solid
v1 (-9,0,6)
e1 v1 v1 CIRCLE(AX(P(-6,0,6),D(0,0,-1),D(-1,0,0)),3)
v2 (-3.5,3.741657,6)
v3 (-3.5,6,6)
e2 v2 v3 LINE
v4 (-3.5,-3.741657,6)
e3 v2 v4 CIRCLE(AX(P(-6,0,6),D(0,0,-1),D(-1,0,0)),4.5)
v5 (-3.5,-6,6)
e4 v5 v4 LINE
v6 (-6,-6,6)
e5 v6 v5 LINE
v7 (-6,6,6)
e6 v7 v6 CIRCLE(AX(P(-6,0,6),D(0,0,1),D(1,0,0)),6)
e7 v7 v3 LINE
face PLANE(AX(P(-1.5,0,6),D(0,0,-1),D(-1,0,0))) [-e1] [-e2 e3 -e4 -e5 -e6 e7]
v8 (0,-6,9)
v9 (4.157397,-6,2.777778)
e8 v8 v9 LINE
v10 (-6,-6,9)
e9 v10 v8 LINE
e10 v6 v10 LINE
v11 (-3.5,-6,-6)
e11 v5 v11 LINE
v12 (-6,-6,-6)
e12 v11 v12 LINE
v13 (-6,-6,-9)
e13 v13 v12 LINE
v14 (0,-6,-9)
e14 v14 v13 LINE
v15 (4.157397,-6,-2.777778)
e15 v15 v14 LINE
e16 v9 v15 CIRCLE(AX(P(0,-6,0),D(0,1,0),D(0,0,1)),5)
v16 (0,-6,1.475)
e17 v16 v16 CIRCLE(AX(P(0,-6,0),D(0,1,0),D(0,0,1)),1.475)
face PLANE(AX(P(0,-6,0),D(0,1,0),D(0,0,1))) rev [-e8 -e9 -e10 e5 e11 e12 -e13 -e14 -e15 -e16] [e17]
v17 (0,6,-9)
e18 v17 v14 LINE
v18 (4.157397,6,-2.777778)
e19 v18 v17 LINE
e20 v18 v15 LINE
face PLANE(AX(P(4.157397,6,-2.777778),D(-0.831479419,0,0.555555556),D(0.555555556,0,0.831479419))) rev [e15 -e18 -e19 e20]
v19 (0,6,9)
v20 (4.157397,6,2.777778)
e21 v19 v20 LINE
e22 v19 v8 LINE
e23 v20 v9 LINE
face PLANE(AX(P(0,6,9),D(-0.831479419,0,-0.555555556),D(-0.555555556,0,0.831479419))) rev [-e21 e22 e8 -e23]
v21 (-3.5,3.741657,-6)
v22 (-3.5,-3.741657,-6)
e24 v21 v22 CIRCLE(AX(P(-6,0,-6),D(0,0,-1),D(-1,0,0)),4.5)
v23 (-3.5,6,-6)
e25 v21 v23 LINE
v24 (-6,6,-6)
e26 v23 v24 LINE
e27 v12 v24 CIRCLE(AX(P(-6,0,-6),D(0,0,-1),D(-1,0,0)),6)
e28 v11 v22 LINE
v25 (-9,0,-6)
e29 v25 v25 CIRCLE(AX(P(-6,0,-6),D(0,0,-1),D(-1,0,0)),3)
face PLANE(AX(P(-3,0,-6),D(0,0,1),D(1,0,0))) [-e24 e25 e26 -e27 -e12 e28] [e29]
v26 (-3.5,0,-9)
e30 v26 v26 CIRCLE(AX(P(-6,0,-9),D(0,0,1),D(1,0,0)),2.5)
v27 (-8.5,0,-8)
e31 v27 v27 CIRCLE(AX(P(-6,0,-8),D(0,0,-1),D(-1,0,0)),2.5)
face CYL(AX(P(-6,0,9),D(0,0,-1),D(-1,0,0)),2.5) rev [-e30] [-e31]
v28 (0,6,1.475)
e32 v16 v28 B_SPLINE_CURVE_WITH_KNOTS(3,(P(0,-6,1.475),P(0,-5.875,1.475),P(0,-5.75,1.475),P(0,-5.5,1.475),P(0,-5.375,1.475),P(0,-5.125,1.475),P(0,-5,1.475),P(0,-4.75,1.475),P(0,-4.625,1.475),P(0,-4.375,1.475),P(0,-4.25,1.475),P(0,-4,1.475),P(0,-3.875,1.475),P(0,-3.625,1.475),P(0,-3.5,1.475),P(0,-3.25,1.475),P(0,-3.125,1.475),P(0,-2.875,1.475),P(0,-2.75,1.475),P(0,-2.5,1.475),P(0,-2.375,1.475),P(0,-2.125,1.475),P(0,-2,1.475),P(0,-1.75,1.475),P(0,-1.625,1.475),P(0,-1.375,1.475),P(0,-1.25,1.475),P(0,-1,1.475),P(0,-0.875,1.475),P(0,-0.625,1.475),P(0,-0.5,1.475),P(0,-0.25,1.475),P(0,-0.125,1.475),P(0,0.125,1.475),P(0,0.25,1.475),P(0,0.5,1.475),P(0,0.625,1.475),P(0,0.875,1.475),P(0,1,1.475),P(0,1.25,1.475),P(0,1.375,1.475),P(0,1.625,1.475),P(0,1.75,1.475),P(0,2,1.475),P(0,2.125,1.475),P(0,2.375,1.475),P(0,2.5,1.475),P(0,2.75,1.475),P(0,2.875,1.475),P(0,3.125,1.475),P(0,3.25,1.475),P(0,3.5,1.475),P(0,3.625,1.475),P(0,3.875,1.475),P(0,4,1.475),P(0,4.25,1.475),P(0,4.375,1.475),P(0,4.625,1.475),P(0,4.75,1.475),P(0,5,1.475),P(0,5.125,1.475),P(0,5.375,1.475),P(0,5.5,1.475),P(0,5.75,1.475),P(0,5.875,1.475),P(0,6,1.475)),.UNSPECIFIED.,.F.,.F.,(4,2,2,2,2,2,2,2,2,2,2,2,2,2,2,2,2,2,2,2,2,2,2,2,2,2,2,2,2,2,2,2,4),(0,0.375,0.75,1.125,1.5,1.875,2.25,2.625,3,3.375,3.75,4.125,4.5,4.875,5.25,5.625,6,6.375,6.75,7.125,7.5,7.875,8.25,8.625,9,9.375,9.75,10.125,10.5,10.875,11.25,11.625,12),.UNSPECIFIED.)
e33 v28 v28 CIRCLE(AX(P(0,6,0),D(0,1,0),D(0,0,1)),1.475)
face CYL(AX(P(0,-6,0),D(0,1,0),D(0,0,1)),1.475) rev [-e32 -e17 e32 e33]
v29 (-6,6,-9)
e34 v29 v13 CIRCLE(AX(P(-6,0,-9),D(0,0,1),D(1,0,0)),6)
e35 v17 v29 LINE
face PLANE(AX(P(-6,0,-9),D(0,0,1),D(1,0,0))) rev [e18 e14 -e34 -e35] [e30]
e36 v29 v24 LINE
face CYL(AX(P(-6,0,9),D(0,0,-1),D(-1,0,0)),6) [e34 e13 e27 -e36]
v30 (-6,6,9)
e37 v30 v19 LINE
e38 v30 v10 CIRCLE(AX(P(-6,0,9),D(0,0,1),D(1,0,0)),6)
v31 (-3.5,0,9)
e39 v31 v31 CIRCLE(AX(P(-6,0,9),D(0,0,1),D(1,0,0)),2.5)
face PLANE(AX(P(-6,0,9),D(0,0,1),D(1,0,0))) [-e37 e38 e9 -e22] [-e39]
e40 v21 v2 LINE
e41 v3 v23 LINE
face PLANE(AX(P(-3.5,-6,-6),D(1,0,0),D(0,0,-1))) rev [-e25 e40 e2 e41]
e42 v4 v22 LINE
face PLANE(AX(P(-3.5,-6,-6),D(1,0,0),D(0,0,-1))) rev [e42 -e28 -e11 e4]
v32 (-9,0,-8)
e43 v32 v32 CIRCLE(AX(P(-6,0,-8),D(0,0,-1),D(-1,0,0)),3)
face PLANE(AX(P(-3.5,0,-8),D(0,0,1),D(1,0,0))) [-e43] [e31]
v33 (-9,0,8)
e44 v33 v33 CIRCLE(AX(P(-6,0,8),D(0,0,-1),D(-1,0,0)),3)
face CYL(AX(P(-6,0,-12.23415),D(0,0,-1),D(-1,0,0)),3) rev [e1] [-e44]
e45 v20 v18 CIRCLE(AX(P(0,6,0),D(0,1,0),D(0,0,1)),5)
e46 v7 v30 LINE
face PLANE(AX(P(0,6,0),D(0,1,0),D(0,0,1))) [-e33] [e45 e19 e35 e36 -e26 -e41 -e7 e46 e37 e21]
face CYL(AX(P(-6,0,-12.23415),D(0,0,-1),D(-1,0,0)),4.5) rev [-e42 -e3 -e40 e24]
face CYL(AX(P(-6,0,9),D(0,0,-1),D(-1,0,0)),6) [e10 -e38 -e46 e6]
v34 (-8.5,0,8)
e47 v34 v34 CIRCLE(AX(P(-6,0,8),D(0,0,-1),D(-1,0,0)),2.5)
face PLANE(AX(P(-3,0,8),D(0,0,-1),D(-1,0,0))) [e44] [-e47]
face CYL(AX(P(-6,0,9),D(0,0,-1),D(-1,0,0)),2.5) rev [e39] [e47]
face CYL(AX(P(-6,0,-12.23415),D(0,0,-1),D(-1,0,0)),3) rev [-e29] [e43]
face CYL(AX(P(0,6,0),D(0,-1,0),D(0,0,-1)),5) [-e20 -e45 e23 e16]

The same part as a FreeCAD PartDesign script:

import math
import FreeCAD as App
import Part
import Sketcher

V = App.Vector
Q = App.Units.Quantity


def add_polygon(sketch, points):
    """Adds a closed chain of lines whose ends are joined by coincident constraints."""
    first, n = sketch.GeometryCount, len(points)
    for a, b in zip(points, points[1:] + points[:1]):
        sketch.addGeometry(Part.LineSegment(App.Vector(*a, 0), App.Vector(*b, 0)), False)
    for i in range(n):
        sketch.addConstraint(Sketcher.Constraint("Coincident", first + i, 2, first + (i + 1) % n, 1))

doc = App.newDocument("Part")
params = doc.addObject("Spreadsheet::Sheet", "Params")
for row, (alias, value) in enumerate([
    ("sketch1_diameter", "12 mm"),
    ("sketch1_diameter2", "5 mm"),
    ("pad1_length", "18 mm"),
    ("sketch2_diameter", "10 mm"),
    ("sketch2_diameter2", "2.95 mm"),
    ("pad2_length", "12 mm"),
    ("sketch3_radius", "5 mm"),
    ("sketch3_width", "6 mm"),
    ("sketch3_height", "18 mm"),
    ("pad3_length", "12 mm"),
    ("sketch4_height", "1 mm"),
    ("sketch4_height2", "18 mm"),
    ("sketch4_height3", "2 mm"),
    ("sketch4_width", "2.5 mm"),
    ("sketch4_width2", "0.5 mm"),
    ("groove_angle", "360 deg"),
    ("sketch5_diameter", "2.95 mm"),
    ("sketch5_height", "12 mm"),
    ("sketch5_width", "8.5 mm"),
], start=1):
    params.set(f"A{row}", alias)
    params.set(f"B{row}", "=" + value)
    params.setAlias(f"B{row}", alias)

body = doc.addObject("PartDesign::Body", "Body")

sketch1 = body.newObject("Sketcher::SketchObject", "Sketch")
sketch1.AttachmentSupport = (doc.getObject("XY_Plane"), [""])
sketch1.MapMode = "FlatFace"
sketch1.addGeometry([
    Part.Circle(V(-6, 0, 0), V(0, 0, 1), 6),
    Part.Circle(V(-6, 0, 0), V(0, 0, 1), 2.5),
], False)
sketch1.addConstraint([
    Sketcher.Constraint("Coincident", 1, 3, 0, 3),
    Sketcher.Constraint("PointOnObject", 0, 3, -1),
    Sketcher.Constraint("Diameter", 0, Q("12 mm")),
    Sketcher.Constraint("Diameter", 1, Q("5 mm")),
    Sketcher.Constraint("DistanceX", 0, 3, -1, 1, Q("6 mm")),
])
sketch1.setExpression("Constraints[2]", "Params.sketch1_diameter")
sketch1.setExpression("Constraints[3]", "Params.sketch1_diameter2")
pad1 = body.newObject("PartDesign::Pad", "Pad")
pad1.Profile = sketch1
pad1.setExpression("Length", "Params.pad1_length")
pad1.Midplane = True

sketch2 = body.newObject("Sketcher::SketchObject", "Sketch001")
sketch2.AttachmentSupport = (doc.getObject("XZ_Plane"), [""])
sketch2.MapMode = "FlatFace"
sketch2.addGeometry([
    Part.Circle(V(0, 0, 0), V(0, 0, 1), 5),
    Part.Circle(V(0, 0, 0), V(0, 0, 1), 1.5),
], False)
sketch2.addConstraint([
    Sketcher.Constraint("Coincident", 0, 3, -1, 1),
    Sketcher.Constraint("Coincident", 1, 3, -1, 1),
    Sketcher.Constraint("Diameter", 0, Q("10 mm")),
    Sketcher.Constraint("Diameter", 1, Q("2.95 mm")),
])
sketch2.setExpression("Constraints[2]", "Params.sketch2_diameter")
sketch2.setExpression("Constraints[3]", "Params.sketch2_diameter2")
pad2 = body.newObject("PartDesign::Pad", "Pad001")
pad2.Profile = sketch2
pad2.setExpression("Length", "Params.pad2_length")
pad2.Midplane = True

sketch3 = body.newObject("Sketcher::SketchObject", "Sketch002")
sketch3.AttachmentSupport = (doc.getObject("XZ_Plane"), [""])
sketch3.MapMode = "FlatFace"
sketch3.addGeometry([
    Part.LineSegment(V(-6, -9, 0), V(-6, 9, 0)),
    Part.LineSegment(V(-6, 9, 0), V(0, 9, 0)),
    Part.LineSegment(V(0, 9, 0), V(4.2, 2.8, 0)),
    Part.ArcOfCircle(Part.Circle(V(0, 0, 0), V(0, 0, 1), 5), math.radians(-34), math.radians(34)),
    Part.LineSegment(V(4.2, -2.8, 0), V(0, -9, 0)),
    Part.LineSegment(V(0, -9, 0), V(-6, -9, 0)),
], False)
sketch3.addConstraint([
    Sketcher.Constraint("Coincident", 0, 2, 1, 1),
    Sketcher.Constraint("Coincident", 1, 2, 2, 1),
    Sketcher.Constraint("Tangent", 2, 2, 3, 2),
    Sketcher.Constraint("Tangent", 3, 1, 4, 1),
    Sketcher.Constraint("Coincident", 4, 2, 5, 1),
    Sketcher.Constraint("Coincident", 5, 2, 0, 1),
    Sketcher.Constraint("Vertical", 0),
    Sketcher.Constraint("Horizontal", 1),
    Sketcher.Constraint("Horizontal", 5),
    Sketcher.Constraint("Coincident", 3, 3, -1, 1),
    Sketcher.Constraint("Symmetric", 1, 2, 4, 2, -1, 1),
    Sketcher.Constraint("PointOnObject", 1, 2, -2),
    Sketcher.Constraint("Radius", 3, Q("5 mm")),
    Sketcher.Constraint("DistanceX", 1, 1, 1, 2, Q("6 mm")),
    Sketcher.Constraint("DistanceY", 0, 1, 0, 2, Q("18 mm")),
])
sketch3.setExpression("Constraints[12]", "Params.sketch3_radius")
sketch3.setExpression("Constraints[13]", "Params.sketch3_width")
sketch3.setExpression("Constraints[14]", "Params.sketch3_height")
pad3 = body.newObject("PartDesign::Pad", "Pad002")
pad3.Profile = sketch3
pad3.setExpression("Length", "Params.pad3_length")
pad3.Midplane = True

sketch4 = body.newObject("Sketcher::SketchObject", "Sketch003")
sketch4.AttachmentSupport = (doc.getObject("XZ_Plane"), [""])
sketch4.MapMode = "FlatFace"
add_polygon(sketch4, [(-3.5, -8), (-3.5, -9), (-6, -9), (-6, 9), (-3.5, 9), (-3.5, 8), (-3, 8), (-3, 6), (-1.5, 6), (-1.5, -6), (-3, -6), (-3, -8)])
sketch4.addGeometry(Part.LineSegment(V(-6, -9, 0), V(-6, 9, 0)), True)
sketch4.addConstraint([
    Sketcher.Constraint("Vertical", 0),
    Sketcher.Constraint("Horizontal", 1),
    Sketcher.Constraint("Vertical", 2),
    Sketcher.Constraint("Horizontal", 3),
    Sketcher.Constraint("Vertical", 4),
    Sketcher.Constraint("Horizontal", 5),
    Sketcher.Constraint("Vertical", 6),
    Sketcher.Constraint("Horizontal", 7),
    Sketcher.Constraint("Vertical", 8),
    Sketcher.Constraint("Horizontal", 9),
    Sketcher.Constraint("Vertical", 10),
    Sketcher.Constraint("Horizontal", 11),
    Sketcher.Constraint("Vertical", 12),
    Sketcher.Constraint("Coincident", 12, 1, 1, 2),
    Sketcher.Constraint("Symmetric", 0, 2, 3, 2, -1),
    Sketcher.Constraint("Symmetric", 6, 2, 9, 2, -1),
    Sketcher.Constraint("Horizontal", 3, 2, 12, 2),
    Sketcher.Constraint("Equal", 0, 4),
    Sketcher.Constraint("DistanceY", 0, 2, 0, 1, Q("1 mm")),
    Sketcher.Constraint("DistanceY", 2, 1, 2, 2, Q("18 mm")),
    Sketcher.Constraint("DistanceY", 6, 2, 6, 1, Q("2 mm")),
    Sketcher.Constraint("DistanceX", 1, 2, 1, 1, Q("2.5 mm")),
    Sketcher.Constraint("DistanceX", 5, 1, 5, 2, Q("0.5 mm")),
    Sketcher.Constraint("DistanceX", 7, 1, 7, 2, Q("1.5 mm")),
    Sketcher.Constraint("DistanceX", 1, 2, -1, 1, Q("6 mm")),
])
sketch4.setExpression("Constraints[30]", "Params.sketch4_height")
sketch4.setExpression("Constraints[31]", "Params.sketch4_height2")
sketch4.setExpression("Constraints[32]", "Params.sketch4_height3")
sketch4.setExpression("Constraints[33]", "Params.sketch4_width")
sketch4.setExpression("Constraints[34]", "Params.sketch4_width2")
groove = body.newObject("PartDesign::Groove", "Groove")
groove.Profile = sketch4
groove.ReferenceAxis = (sketch4, ["Axis0"])
groove.setExpression("Angle", "Params.groove_angle")

sketch5 = body.newObject("Sketcher::SketchObject", "Sketch004")
sketch5.AttachmentSupport = (doc.getObject("XZ_Plane"), [""])
sketch5.MapMode = "FlatFace"
sketch5.addGeometry(Part.Circle(V(0, 0, 0), V(0, 0, 1), 1.5), False)
add_polygon(sketch5, [(-12, -6), (-12, 6), (-3.5, 6), (-3.5, -6)])
sketch5.addConstraint([
    Sketcher.Constraint("Vertical", 1),
    Sketcher.Constraint("Horizontal", 2),
    Sketcher.Constraint("Vertical", 3),
    Sketcher.Constraint("Horizontal", 4),
    Sketcher.Constraint("Coincident", 0, 3, -1, 1),
    Sketcher.Constraint("Diameter", 0, Q("2.95 mm")),
    Sketcher.Constraint("DistanceY", 1, 1, 1, 2, Q("12 mm")),
    Sketcher.Constraint("DistanceX", 2, 1, 2, 2, Q("8.5 mm")),
    Sketcher.Constraint("DistanceX", 1, 2, -1, 1, Q("12 mm")),
    Sketcher.Constraint("DistanceY", -1, 1, 1, 2, Q("6 mm")),
])
sketch5.setExpression("Constraints[9]", "Params.sketch5_diameter")
sketch5.setExpression("Constraints[10]", "Params.sketch5_height")
sketch5.setExpression("Constraints[11]", "Params.sketch5_width")
pocket1 = body.newObject("PartDesign::Pocket", "Pocket")
pocket1.Profile = sketch5
pocket1.Type = "ThroughAll"
pocket1.Midplane = True

doc.recompute()
